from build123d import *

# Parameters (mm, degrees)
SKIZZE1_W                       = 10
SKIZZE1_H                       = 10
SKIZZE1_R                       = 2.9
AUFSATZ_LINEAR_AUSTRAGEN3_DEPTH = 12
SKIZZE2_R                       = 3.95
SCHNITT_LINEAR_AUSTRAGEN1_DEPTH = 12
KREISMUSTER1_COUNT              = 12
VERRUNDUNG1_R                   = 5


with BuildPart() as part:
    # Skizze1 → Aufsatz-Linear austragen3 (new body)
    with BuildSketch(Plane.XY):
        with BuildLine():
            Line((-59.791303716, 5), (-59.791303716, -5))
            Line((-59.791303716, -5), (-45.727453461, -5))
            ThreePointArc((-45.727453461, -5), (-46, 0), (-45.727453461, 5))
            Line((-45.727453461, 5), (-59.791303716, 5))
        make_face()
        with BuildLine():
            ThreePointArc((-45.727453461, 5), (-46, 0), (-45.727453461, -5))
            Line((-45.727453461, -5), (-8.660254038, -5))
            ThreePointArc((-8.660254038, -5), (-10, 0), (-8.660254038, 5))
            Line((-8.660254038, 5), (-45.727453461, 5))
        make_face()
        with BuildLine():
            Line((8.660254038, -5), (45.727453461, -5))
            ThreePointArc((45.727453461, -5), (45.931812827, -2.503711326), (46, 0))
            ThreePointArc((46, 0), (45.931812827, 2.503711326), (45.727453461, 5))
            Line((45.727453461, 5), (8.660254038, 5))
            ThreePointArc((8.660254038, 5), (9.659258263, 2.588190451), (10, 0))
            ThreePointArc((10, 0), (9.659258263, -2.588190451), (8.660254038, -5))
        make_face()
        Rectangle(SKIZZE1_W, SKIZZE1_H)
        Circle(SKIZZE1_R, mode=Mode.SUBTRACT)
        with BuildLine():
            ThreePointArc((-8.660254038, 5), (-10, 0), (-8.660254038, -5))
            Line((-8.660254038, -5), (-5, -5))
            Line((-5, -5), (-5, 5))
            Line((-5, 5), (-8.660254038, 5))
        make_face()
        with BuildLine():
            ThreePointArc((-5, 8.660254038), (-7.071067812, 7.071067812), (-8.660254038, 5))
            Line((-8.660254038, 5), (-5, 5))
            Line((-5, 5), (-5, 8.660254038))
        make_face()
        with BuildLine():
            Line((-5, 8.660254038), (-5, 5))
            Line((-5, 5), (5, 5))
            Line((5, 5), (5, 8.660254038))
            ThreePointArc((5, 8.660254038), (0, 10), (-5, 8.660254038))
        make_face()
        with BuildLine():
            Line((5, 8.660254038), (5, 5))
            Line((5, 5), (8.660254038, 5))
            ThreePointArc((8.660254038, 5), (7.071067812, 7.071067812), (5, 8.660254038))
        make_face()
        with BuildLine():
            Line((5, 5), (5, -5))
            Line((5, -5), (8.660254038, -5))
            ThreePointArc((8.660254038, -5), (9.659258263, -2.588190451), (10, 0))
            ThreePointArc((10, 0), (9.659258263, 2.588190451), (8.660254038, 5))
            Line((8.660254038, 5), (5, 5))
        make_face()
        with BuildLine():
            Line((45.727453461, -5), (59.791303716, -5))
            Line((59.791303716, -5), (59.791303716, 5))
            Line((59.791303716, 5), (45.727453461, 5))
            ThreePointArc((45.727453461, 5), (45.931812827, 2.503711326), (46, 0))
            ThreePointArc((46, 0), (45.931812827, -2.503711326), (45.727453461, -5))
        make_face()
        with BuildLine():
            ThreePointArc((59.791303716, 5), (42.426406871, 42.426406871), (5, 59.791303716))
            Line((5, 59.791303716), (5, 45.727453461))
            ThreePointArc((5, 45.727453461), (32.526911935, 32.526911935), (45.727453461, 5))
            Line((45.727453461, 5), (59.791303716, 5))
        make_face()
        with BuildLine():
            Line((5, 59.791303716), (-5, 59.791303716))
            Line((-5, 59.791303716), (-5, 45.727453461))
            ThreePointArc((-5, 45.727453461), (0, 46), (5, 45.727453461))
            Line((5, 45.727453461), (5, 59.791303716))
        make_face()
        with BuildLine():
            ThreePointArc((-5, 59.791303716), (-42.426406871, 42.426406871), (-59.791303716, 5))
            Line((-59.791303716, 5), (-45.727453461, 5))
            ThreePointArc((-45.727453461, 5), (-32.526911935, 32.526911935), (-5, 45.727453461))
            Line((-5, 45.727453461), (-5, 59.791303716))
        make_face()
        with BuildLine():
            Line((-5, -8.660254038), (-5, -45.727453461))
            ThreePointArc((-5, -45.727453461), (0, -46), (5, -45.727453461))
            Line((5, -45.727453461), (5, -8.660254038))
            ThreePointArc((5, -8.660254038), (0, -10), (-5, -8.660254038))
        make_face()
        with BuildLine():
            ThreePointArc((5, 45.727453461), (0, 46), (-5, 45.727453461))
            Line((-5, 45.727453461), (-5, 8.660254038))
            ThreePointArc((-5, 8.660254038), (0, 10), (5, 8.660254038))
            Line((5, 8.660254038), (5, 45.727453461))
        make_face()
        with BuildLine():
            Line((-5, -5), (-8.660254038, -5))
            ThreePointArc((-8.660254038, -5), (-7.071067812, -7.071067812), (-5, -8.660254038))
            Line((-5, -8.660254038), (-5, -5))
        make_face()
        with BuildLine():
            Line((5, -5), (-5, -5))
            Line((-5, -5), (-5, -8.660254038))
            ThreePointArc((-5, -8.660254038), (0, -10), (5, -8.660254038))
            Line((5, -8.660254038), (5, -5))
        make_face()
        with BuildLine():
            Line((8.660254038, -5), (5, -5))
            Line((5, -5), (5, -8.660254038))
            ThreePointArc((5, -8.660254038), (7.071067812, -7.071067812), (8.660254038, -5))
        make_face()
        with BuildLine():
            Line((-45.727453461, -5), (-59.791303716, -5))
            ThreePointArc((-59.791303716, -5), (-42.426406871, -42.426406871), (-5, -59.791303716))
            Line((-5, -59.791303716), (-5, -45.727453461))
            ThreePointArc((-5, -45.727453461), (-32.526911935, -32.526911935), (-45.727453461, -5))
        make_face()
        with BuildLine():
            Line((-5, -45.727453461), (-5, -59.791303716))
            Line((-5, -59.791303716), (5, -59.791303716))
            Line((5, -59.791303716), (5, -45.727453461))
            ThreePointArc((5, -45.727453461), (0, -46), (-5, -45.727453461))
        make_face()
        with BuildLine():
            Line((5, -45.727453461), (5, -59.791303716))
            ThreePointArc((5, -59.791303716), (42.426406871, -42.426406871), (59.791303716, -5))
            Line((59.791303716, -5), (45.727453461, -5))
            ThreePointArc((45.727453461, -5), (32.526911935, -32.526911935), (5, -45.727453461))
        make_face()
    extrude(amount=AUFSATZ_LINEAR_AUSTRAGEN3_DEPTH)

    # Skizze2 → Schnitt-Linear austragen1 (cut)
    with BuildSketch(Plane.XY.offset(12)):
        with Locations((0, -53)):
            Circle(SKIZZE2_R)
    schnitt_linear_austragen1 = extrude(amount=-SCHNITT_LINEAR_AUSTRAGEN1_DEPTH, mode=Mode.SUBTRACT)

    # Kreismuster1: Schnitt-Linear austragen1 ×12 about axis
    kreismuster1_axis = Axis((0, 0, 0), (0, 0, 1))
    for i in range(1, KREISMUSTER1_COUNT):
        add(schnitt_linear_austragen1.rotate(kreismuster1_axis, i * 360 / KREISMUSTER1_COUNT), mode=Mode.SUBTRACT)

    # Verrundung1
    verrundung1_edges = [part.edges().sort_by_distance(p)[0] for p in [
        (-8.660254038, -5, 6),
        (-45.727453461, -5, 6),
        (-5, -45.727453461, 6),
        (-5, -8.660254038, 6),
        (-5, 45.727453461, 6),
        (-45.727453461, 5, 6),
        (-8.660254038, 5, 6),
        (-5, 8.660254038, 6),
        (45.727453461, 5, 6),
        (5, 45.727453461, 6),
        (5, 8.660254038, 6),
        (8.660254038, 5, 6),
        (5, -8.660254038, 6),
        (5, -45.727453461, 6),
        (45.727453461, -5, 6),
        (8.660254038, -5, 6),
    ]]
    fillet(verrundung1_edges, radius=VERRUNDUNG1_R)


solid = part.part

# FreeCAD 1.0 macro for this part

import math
import FreeCAD as App
import Part
import Sketcher

V = App.Vector


def edges_at(feature, points):
    """Names of the edges that pass closest to the given points."""
    edges = feature.Shape.Edges
    near = lambda p: min(range(len(edges)), key=lambda i: edges[i].distToShape(Part.Vertex(*p))[0])
    return sorted({f"Edge{near(p) + 1}" for p in points})

doc = App.newDocument("Part")
body = doc.addObject("PartDesign::Body", "Body")

# Sketch on XY plane
sketch1 = body.newObject("Sketcher::SketchObject", "Sketch")
sketch1.AttachmentSupport = (doc.getObject("XY_Plane"), [""])
sketch1.MapMode = "FlatFace"
sketch1.addGeometry([
    Part.ArcOfCircle(Part.Circle(V(0, 0, 0), V(0, 0, 1), 60), math.radians(-175), math.radians(-95)),  # 0
    Part.LineSegment(V(-5, -59.8, 0), V(5, -59.8, 0)),  # 1
    Part.ArcOfCircle(Part.Circle(V(0, 0, 0), V(0, 0, 1), 60), math.radians(-85), math.radians(-5)),  # 2
    Part.LineSegment(V(59.8, -5, 0), V(59.8, 5, 0)),  # 3
    Part.ArcOfCircle(Part.Circle(V(0, 0, 0), V(0, 0, 1), 60), math.radians(5), math.radians(85)),  # 4
    Part.LineSegment(V(5, 59.8, 0), V(-5, 59.8, 0)),  # 5
    Part.ArcOfCircle(Part.Circle(V(0, 0, 0), V(0, 0, 1), 60), math.radians(95), math.radians(175)),  # 6
    Part.LineSegment(V(-59.8, 5, 0), V(-59.8, -5, 0)),  # 7
    Part.LineSegment(V(5, -45.7, 0), V(5, -8.7, 0)),  # 8
    Part.ArcOfCircle(Part.Circle(V(0, 0, 0), V(0, 0, 1), 10), math.radians(-60), math.radians(-30)),  # 9
    Part.LineSegment(V(8.7, -5, 0), V(45.7, -5, 0)),  # 10
    Part.ArcOfCircle(Part.Circle(V(0, 0, 0), V(0, 0, 1), 46), math.radians(-84), math.radians(-6)),  # 11
    Part.LineSegment(V(-5, -8.7, 0), V(-5, -45.7, 0)),  # 12
    Part.ArcOfCircle(Part.Circle(V(0, 0, 0), V(0, 0, 1), 46), math.radians(-174), math.radians(-96)),  # 13
    Part.LineSegment(V(-45.7, -5, 0), V(-8.7, -5, 0)),  # 14
    Part.ArcOfCircle(Part.Circle(V(0, 0, 0), V(0, 0, 1), 10), math.radians(-150), math.radians(-120)),  # 15
    Part.Circle(V(0, 0, 0), V(0, 0, 1), 2.9),  # 16
    Part.ArcOfCircle(Part.Circle(V(0, 0, 0), V(0, 0, 1), 10), math.radians(120), math.radians(150)),  # 17
    Part.LineSegment(V(-8.7, 5, 0), V(-45.7, 5, 0)),  # 18
    Part.ArcOfCircle(Part.Circle(V(0, 0, 0), V(0, 0, 1), 46), math.radians(96), math.radians(174)),  # 19
    Part.LineSegment(V(-5, 45.7, 0), V(-5, 8.7, 0)),  # 20
    Part.ArcOfCircle(Part.Circle(V(0, 0, 0), V(0, 0, 1), 10), math.radians(30), math.radians(60)),  # 21
    Part.LineSegment(V(5, 8.7, 0), V(5, 45.7, 0)),  # 22
    Part.ArcOfCircle(Part.Circle(V(0, 0, 0), V(0, 0, 1), 46), math.radians(6), math.radians(84)),  # 23
    Part.LineSegment(V(45.7, 5, 0), V(8.7, 5, 0)),  # 24
], False)
sketch1.addConstraint([
    Sketcher.Constraint("Coincident", 0, 2, 1, 1),
    Sketcher.Constraint("Coincident", 1, 2, 2, 1),
    Sketcher.Constraint("Coincident", 2, 2, 3, 1),
    Sketcher.Constraint("Coincident", 3, 2, 4, 1),
    Sketcher.Constraint("Coincident", 4, 2, 5, 1),
    Sketcher.Constraint("Coincident", 5, 2, 6, 1),
    Sketcher.Constraint("Coincident", 6, 2, 7, 1),
    Sketcher.Constraint("Coincident", 7, 2, 0, 1),
    Sketcher.Constraint("Coincident", 8, 2, 9, 1),
    Sketcher.Constraint("Coincident", 9, 2, 10, 1),
    Sketcher.Constraint("Coincident", 10, 2, 11, 2),
    Sketcher.Constraint("Coincident", 11, 1, 8, 1),
    Sketcher.Constraint("Coincident", 12, 2, 13, 2),
    Sketcher.Constraint("Coincident", 13, 1, 14, 1),
    Sketcher.Constraint("Coincident", 14, 2, 15, 1),
    Sketcher.Constraint("Coincident", 15, 2, 12, 1),
    Sketcher.Constraint("Coincident", 17, 2, 18, 1),
    Sketcher.Constraint("Coincident", 18, 2, 19, 2),
    Sketcher.Constraint("Coincident", 19, 1, 20, 1),
    Sketcher.Constraint("Coincident", 20, 2, 17, 1),
    Sketcher.Constraint("Coincident", 21, 2, 22, 1),
    Sketcher.Constraint("Coincident", 22, 2, 23, 2),
    Sketcher.Constraint("Coincident", 23, 1, 24, 1),
    Sketcher.Constraint("Coincident", 24, 2, 21, 1),
    Sketcher.Constraint("Horizontal", 1),
    Sketcher.Constraint("Vertical", 3),
    Sketcher.Constraint("Horizontal", 5),
    Sketcher.Constraint("Vertical", 7),
    Sketcher.Constraint("Vertical", 8),
    Sketcher.Constraint("Horizontal", 10),
    Sketcher.Constraint("Vertical", 12),
    Sketcher.Constraint("Horizontal", 14),
    Sketcher.Constraint("Horizontal", 18),
    Sketcher.Constraint("Vertical", 20),
    Sketcher.Constraint("Vertical", 22),
    Sketcher.Constraint("Horizontal", 24),
    Sketcher.Constraint("Coincident", 0, 3, -1, 1),
    Sketcher.Constraint("Coincident", 2, 3, -1, 1),
    Sketcher.Constraint("Coincident", 4, 3, -1, 1),
    Sketcher.Constraint("Coincident", 6, 3, -1, 1),
    Sketcher.Constraint("Coincident", 9, 3, -1, 1),
    Sketcher.Constraint("Coincident", 11, 3, -1, 1),
    Sketcher.Constraint("Coincident", 13, 3, -1, 1),
    Sketcher.Constraint("Coincident", 15, 3, -1, 1),
    Sketcher.Constraint("Coincident", 16, 3, -1, 1),
    Sketcher.Constraint("Coincident", 17, 3, -1, 1),
    Sketcher.Constraint("Coincident", 19, 3, -1, 1),
    Sketcher.Constraint("Coincident", 21, 3, -1, 1),
    Sketcher.Constraint("Coincident", 23, 3, -1, 1),
    Sketcher.Constraint("Equal", 0, 2),
    Sketcher.Constraint("Equal", 2, 4),
    Sketcher.Constraint("Equal", 4, 6),
    Sketcher.Constraint("Equal", 11, 13),
    Sketcher.Constraint("Equal", 9, 15),
    Sketcher.Constraint("Equal", 15, 17),
    Sketcher.Constraint("Equal", 13, 19),
    Sketcher.Constraint("Equal", 17, 21),
    Sketcher.Constraint("Equal", 19, 23),
    Sketcher.Constraint("Horizontal", 3, 2, 6, 2),
    Sketcher.Constraint("Horizontal", 7, 2, 9, 2),
    Sketcher.Constraint("Horizontal", 11, 1, 12, 2),
    Sketcher.Constraint("Horizontal", 10, 2, 13, 1),
    Sketcher.Constraint("Horizontal", 6, 2, 17, 2),
    Sketcher.Constraint("Horizontal", 20, 2, 21, 2),
    Sketcher.Constraint("Horizontal", 18, 2, 23, 1),
    Sketcher.Constraint("Vertical", 1, 2, 4, 2),
    Sketcher.Constraint("Vertical", 4, 2, 8, 2),
    Sketcher.Constraint("Vertical", 15, 2, 19, 1),
    Sketcher.Constraint("Equal", 5, 3),
    Sketcher.Constraint("Radius", 0, 60.0),
    Sketcher.Constraint("Radius", 9, 10.0),
    Sketcher.Constraint("Radius", 11, 46.0),
    Sketcher.Constraint("Diameter", 16, 5.8),
    Sketcher.Constraint("DistanceX", 1, 1, 1, 2, 10.0),
])
pad1 = body.newObject("PartDesign::Pad", "Pad")
pad1.Profile = sketch1
pad1.Length = 12

# Sketch on XY plane
sketch2 = body.newObject("Sketcher::SketchObject", "Sketch001")
sketch2.AttachmentSupport = (doc.getObject("XY_Plane"), [""])
sketch2.MapMode = "FlatFace"
sketch2.AttachmentOffset = App.Placement(V(0, 0, 12), App.Rotation())
sketch2.addGeometry(Part.Circle(V(0, -53, 0), V(0, 0, 1), 4), False)
sketch2.addConstraint([
    Sketcher.Constraint("PointOnObject", 0, 3, -2),
    Sketcher.Constraint("Diameter", 0, 7.9),
    Sketcher.Constraint("DistanceY", 0, 3, -1, 1, 53.0),
])
pocket1 = body.newObject("PartDesign::Pocket", "Pocket")
pocket1.Profile = sketch2
pocket1.Length = 12
doc.recompute()

polarpattern = body.newObject("PartDesign::PolarPattern", "PolarPattern")
polarpattern.Originals = [pocket1]
polarpattern.Axis = (doc.getObject("Z_Axis"), [""])
polarpattern.Angle = 360
polarpattern.Occurrences = 12
body.Tip = polarpattern
doc.recompute()

fillet = body.newObject("PartDesign::Fillet", "Fillet")
fillet.Base = (polarpattern, edges_at(polarpattern, [
    (-8.66, -5, 6),
    (-45.727, -5, 6),
    (-5, -45.727, 6),
    (-5, -8.66, 6),
    (-5, 45.727, 6),
    (-45.727, 5, 6),
    (-8.66, 5, 6),
    (-5, 8.66, 6),
    (45.727, 5, 6),
    (5, 45.727, 6),
    (5, 8.66, 6),
    (8.66, 5, 6),
    (5, -8.66, 6),
    (5, -45.727, 6),
    (45.727, -5, 6),
    (8.66, -5, 6),
]))
fillet.Radius = 5

doc.recompute()
